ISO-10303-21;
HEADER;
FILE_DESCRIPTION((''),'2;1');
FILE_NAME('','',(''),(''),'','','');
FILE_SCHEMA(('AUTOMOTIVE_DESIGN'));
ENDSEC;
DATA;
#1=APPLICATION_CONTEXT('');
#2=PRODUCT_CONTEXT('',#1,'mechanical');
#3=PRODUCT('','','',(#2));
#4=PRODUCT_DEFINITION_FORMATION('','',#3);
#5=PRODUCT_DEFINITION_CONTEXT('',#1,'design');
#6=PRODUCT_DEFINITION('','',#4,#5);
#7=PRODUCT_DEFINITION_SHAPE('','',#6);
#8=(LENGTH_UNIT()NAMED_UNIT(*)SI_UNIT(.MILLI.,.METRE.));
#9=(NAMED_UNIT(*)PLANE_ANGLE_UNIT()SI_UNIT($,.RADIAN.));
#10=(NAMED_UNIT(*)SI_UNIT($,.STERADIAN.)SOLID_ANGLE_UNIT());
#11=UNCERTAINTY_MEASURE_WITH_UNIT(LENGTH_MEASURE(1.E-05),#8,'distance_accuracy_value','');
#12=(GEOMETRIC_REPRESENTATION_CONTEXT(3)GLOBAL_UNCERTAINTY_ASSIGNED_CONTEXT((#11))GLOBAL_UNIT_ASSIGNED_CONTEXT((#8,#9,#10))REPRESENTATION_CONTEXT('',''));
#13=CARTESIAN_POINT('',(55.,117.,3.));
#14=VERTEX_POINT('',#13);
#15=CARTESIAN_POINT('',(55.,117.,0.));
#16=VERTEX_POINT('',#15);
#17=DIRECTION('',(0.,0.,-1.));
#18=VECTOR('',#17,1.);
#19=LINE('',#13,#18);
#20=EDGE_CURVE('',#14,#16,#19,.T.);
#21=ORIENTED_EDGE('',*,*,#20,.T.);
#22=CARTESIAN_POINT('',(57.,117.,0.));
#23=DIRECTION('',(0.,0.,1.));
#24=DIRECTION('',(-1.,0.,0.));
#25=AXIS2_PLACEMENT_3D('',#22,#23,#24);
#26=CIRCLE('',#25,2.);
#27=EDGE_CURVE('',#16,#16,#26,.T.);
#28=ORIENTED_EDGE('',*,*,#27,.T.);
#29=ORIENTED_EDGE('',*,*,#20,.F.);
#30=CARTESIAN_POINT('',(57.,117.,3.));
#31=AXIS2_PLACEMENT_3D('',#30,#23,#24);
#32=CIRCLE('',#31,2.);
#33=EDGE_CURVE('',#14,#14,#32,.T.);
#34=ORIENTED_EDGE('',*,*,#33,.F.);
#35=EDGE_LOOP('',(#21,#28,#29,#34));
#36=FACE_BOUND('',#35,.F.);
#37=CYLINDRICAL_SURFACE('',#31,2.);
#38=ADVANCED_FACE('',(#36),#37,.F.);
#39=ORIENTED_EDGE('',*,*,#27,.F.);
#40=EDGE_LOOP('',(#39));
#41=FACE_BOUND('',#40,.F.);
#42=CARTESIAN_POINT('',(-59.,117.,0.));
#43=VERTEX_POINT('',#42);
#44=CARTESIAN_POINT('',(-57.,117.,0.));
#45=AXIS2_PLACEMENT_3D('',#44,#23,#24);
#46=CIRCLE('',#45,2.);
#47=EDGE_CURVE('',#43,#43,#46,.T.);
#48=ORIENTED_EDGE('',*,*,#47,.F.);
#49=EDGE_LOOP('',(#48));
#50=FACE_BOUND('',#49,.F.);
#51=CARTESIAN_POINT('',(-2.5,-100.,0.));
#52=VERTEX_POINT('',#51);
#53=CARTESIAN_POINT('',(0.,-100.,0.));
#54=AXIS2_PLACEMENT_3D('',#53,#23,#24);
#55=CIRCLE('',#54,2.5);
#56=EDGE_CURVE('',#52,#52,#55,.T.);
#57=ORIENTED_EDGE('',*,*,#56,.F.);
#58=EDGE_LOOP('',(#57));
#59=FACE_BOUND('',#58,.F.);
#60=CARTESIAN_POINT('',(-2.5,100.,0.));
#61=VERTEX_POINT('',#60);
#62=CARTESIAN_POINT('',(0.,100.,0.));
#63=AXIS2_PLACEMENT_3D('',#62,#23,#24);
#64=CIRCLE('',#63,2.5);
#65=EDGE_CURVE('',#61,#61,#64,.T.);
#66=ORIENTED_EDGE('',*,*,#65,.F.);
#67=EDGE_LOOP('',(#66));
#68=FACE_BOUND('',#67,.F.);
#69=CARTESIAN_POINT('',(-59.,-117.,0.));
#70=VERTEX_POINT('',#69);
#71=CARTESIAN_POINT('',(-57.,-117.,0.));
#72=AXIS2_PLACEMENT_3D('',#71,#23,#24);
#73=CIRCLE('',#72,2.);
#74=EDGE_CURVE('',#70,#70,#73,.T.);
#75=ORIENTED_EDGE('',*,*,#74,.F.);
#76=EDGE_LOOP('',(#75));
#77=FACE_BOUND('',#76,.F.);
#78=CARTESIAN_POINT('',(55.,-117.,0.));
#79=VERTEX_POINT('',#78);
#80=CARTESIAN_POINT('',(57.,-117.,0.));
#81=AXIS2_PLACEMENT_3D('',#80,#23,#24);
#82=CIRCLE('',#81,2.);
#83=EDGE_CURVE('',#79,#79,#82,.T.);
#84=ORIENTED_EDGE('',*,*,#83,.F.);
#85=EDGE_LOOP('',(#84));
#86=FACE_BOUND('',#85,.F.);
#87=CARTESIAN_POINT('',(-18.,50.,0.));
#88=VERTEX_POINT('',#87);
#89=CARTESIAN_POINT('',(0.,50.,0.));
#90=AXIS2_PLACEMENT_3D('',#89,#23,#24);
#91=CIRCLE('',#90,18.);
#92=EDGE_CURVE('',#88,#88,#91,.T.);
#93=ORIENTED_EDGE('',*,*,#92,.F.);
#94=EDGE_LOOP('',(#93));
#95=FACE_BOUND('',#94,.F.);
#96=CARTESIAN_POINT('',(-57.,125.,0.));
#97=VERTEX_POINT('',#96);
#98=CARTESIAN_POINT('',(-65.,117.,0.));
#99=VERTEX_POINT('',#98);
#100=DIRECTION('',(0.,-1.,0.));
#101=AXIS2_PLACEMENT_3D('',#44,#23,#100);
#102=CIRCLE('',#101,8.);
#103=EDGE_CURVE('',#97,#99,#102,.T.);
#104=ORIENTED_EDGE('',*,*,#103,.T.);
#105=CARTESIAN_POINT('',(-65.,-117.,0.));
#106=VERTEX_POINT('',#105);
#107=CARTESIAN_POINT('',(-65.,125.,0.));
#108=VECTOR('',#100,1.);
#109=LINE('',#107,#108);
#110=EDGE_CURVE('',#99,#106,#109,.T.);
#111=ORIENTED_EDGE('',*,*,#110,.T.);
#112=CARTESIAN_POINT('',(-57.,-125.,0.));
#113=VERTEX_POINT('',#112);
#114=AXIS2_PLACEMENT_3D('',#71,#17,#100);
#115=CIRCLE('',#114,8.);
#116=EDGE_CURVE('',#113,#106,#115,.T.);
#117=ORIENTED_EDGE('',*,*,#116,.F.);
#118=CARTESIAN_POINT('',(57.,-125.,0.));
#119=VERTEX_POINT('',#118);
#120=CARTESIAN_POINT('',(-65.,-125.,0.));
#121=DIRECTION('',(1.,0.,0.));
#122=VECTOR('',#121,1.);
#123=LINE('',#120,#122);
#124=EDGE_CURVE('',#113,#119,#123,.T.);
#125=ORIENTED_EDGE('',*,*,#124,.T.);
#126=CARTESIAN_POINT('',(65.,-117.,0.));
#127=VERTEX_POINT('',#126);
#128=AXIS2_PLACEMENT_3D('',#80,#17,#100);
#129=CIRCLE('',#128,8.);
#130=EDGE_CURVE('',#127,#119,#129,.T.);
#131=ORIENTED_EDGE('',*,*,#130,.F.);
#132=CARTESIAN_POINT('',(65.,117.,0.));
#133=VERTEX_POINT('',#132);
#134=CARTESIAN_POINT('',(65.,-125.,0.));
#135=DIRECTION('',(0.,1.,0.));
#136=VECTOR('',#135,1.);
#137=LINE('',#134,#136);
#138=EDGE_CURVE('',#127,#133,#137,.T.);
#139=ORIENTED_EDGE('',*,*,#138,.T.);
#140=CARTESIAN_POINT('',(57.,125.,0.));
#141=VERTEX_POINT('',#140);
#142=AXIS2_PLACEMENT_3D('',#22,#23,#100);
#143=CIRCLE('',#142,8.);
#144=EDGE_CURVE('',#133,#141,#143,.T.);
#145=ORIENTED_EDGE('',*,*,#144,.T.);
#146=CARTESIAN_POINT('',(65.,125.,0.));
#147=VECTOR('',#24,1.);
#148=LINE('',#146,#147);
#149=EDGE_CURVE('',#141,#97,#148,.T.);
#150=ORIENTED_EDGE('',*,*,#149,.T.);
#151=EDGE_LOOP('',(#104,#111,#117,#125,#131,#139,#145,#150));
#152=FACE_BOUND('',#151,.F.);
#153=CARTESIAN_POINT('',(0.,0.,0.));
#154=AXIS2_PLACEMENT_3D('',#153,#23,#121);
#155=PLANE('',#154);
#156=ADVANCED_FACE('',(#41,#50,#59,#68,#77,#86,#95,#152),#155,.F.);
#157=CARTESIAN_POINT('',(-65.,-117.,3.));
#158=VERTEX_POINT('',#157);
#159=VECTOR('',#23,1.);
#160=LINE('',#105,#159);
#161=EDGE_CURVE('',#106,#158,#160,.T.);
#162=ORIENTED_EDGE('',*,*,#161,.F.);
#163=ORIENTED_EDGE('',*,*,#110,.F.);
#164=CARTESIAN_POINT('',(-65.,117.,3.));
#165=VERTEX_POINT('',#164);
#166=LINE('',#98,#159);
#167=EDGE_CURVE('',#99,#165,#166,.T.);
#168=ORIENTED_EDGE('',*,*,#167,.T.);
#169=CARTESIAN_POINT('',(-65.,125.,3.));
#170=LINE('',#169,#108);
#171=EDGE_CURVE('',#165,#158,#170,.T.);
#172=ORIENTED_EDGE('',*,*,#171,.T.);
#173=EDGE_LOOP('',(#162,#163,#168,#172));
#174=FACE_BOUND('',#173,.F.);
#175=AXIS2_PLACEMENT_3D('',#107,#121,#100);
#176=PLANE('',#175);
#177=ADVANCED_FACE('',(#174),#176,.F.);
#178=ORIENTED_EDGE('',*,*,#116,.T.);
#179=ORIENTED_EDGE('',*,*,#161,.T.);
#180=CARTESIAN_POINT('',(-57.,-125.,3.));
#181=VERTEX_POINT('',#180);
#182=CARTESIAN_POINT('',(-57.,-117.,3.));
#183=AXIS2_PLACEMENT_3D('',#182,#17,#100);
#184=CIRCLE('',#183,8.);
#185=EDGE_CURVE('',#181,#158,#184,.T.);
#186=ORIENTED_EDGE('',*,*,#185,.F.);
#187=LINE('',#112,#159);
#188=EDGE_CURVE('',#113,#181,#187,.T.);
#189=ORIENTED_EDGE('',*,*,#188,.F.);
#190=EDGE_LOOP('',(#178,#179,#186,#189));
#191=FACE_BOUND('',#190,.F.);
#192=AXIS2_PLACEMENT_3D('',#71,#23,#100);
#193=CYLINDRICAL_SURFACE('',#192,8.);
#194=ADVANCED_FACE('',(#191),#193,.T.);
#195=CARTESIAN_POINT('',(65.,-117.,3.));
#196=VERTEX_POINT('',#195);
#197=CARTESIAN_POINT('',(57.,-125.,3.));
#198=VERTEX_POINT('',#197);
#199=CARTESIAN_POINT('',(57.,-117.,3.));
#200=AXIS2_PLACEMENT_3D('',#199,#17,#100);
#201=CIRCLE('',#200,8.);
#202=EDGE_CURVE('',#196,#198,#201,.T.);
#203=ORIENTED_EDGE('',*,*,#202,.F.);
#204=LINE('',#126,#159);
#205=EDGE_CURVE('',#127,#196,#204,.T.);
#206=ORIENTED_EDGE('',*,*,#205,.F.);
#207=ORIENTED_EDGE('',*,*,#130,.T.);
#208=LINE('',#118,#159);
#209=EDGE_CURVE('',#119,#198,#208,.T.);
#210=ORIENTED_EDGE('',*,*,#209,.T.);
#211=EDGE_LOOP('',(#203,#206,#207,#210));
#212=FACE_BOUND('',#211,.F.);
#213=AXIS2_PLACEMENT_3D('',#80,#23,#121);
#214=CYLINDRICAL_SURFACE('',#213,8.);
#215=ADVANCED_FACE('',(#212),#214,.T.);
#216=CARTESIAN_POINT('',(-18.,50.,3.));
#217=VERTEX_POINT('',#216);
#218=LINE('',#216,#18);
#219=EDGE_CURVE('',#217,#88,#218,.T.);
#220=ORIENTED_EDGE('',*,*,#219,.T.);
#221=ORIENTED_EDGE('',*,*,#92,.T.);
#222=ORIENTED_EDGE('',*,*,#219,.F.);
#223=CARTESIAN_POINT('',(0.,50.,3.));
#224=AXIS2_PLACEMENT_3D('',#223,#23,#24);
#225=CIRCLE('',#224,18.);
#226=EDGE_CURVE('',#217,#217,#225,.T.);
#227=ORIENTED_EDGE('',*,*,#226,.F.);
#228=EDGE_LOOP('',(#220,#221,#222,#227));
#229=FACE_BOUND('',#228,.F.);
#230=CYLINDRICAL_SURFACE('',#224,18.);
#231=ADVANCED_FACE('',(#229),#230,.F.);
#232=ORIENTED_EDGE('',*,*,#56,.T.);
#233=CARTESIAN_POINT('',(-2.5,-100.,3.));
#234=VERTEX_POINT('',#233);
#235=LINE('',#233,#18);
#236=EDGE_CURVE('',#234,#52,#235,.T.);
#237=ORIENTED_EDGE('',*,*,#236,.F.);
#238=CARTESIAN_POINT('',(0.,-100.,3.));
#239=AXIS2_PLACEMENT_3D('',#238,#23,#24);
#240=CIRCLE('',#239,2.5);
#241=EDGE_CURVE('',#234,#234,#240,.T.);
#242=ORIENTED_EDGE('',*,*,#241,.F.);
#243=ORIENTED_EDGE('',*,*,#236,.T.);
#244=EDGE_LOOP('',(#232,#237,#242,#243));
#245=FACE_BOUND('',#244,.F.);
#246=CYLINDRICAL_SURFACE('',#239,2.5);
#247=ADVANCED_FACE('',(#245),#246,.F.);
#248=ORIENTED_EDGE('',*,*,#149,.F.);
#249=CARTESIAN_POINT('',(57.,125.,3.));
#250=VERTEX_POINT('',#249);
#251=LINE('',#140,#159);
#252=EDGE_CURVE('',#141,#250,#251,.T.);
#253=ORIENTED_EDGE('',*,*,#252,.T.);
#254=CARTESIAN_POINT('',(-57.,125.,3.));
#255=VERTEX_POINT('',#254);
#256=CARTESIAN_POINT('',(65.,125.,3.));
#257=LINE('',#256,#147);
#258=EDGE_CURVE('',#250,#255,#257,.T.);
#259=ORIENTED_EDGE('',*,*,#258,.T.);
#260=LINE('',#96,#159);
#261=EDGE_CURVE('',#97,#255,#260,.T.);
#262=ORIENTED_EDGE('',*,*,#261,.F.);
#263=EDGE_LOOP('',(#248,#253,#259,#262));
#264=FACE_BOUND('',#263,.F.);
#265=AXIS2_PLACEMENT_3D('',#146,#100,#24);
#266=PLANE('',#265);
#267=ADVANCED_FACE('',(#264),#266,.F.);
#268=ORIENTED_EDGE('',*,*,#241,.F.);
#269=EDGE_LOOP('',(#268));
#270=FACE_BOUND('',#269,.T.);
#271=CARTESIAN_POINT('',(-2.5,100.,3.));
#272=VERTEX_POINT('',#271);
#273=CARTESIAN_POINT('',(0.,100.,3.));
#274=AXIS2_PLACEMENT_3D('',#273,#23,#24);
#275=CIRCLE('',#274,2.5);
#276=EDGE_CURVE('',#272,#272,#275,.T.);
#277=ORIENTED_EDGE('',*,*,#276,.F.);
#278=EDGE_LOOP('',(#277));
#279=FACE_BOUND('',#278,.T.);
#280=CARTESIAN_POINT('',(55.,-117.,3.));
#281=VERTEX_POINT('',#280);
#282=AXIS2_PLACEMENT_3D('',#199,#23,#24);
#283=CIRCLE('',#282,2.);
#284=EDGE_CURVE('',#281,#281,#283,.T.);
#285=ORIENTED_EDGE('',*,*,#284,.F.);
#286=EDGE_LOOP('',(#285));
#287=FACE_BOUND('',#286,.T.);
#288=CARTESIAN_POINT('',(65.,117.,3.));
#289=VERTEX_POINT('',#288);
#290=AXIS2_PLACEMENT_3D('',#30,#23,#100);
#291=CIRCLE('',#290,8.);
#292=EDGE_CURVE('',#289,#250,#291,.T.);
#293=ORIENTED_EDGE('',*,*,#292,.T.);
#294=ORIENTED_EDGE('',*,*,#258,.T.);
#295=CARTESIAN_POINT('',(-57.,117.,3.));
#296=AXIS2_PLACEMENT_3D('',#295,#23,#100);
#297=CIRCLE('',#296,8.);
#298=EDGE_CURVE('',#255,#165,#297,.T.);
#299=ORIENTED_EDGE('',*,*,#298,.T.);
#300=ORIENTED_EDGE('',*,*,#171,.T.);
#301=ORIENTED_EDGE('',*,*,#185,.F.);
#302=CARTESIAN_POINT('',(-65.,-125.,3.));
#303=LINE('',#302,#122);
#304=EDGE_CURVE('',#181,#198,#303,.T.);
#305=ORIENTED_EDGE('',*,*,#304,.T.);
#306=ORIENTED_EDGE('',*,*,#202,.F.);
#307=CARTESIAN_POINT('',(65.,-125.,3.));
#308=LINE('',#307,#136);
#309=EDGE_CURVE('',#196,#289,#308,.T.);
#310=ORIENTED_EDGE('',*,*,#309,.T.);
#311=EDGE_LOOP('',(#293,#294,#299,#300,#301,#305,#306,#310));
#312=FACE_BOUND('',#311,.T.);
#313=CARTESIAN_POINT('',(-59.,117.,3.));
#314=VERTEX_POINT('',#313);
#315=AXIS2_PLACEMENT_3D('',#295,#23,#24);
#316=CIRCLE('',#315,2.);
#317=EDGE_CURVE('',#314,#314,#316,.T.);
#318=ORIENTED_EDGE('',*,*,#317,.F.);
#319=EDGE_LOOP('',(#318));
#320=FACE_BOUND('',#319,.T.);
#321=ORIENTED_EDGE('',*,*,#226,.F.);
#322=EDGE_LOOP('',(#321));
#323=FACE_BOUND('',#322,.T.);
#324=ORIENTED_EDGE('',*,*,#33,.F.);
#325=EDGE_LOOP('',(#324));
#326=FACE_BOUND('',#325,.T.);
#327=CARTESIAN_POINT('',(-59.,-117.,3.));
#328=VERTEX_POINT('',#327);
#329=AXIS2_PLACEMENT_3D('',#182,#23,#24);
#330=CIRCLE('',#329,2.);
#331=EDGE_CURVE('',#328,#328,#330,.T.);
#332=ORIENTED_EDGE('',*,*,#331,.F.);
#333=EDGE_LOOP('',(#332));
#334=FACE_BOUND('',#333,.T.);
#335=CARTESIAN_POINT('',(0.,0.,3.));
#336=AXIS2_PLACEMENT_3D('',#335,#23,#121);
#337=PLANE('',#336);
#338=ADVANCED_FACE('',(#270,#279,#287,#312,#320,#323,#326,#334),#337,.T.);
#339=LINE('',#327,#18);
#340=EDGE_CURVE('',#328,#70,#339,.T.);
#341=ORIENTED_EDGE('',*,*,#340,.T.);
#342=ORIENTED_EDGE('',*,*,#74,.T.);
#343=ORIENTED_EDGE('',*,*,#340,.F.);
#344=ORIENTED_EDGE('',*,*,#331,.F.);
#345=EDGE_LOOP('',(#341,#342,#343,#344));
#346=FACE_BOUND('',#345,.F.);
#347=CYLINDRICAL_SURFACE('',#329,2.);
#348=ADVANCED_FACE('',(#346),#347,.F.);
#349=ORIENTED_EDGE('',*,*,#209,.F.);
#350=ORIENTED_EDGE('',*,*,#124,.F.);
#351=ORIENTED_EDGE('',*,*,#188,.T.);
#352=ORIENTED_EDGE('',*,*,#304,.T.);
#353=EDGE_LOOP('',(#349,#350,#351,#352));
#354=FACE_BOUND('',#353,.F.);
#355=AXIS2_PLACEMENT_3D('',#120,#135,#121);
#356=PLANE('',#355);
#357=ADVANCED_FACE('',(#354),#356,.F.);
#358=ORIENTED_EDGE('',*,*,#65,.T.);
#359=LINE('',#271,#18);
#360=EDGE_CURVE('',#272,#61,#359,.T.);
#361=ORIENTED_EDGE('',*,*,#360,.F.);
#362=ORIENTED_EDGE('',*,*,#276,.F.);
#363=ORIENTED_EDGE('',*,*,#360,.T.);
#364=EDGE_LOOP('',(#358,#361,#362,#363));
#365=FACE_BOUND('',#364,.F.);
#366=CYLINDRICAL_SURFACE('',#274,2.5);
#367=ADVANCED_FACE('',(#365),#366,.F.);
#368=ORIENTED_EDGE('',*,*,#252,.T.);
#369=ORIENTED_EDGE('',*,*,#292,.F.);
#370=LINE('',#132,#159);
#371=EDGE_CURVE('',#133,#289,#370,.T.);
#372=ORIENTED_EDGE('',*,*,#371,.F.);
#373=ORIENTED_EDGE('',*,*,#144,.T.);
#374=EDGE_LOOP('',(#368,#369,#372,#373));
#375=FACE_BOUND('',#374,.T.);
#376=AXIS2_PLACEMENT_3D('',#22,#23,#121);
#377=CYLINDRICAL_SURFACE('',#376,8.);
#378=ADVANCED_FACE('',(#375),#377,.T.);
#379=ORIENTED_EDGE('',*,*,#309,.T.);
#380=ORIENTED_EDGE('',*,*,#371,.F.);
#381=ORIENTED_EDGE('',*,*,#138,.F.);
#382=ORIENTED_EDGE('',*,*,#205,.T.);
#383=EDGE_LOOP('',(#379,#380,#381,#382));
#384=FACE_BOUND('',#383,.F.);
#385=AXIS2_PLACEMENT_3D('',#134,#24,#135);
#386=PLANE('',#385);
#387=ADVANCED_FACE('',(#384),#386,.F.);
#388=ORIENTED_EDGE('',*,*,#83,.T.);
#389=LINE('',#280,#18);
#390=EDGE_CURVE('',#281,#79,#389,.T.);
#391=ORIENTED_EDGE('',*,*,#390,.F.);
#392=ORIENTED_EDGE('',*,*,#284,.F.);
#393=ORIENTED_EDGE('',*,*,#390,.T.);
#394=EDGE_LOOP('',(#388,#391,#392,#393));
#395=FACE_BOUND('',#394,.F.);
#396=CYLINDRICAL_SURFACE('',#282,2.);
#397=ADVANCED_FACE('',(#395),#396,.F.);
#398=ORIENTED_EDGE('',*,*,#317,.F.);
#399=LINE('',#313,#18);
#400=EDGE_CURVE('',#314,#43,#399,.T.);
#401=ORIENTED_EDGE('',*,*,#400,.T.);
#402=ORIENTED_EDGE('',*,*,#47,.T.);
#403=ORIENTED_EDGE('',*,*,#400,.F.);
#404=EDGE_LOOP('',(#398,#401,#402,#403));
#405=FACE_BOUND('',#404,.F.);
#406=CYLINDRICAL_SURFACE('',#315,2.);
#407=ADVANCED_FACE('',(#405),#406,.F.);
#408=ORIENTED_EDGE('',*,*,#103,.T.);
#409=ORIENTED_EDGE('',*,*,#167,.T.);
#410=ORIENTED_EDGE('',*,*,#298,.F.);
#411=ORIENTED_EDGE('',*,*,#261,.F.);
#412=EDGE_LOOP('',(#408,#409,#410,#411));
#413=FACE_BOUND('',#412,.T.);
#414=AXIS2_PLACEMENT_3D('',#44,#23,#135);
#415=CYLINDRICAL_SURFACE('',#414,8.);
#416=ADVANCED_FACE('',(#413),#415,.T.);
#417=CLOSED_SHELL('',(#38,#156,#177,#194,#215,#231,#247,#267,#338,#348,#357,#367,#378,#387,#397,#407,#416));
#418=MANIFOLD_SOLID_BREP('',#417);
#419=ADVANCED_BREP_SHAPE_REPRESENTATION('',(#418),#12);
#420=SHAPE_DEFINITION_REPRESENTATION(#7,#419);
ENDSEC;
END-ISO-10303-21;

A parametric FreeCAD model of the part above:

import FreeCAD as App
import Part
import Sketcher


def edges_at(feature, points):
    """Names of the edges that pass closest to the given points."""
    edges = feature.Shape.Edges
    near = lambda p: min(range(len(edges)), key=lambda i: edges[i].distToShape(Part.Vertex(*p))[0])
    return sorted({f"Edge{near(p) + 1}" for p in points})


def add_polygon(sketch, points):
    """Adds a closed chain of lines whose ends are joined by coincident constraints."""
    first, n = sketch.GeometryCount, len(points)
    for a, b in zip(points, points[1:] + points[:1]):
        sketch.addGeometry(Part.LineSegment(App.Vector(*a, 0), App.Vector(*b, 0)), False)
    for i in range(n):
        sketch.addConstraint(Sketcher.Constraint("Coincident", first + i, 2, first + (i + 1) % n, 1))

doc = App.newDocument("Part")
body = doc.addObject("PartDesign::Body", "Body")

# Sketch on XY plane
sketch1 = doc.addObject("Sketcher::SketchObject", "Sketch")
body.addObject(sketch1)
sketch1.AttachmentSupport = (doc.XY_Plane, [""])
sketch1.MapMode = "FlatFace"
add_polygon(sketch1, [(65, -125), (65, 125), (-65, 125), (-65, -125)])  # lines 0-3
sketch1.addConstraint([
    Sketcher.Constraint("Vertical", 0),
    Sketcher.Constraint("Horizontal", 1),
    Sketcher.Constraint("Vertical", 2),
    Sketcher.Constraint("Horizontal", 3),
    Sketcher.Constraint("Symmetric", 0, 2, 2, 2, -1, 1),
    Sketcher.Constraint("DistanceX", 1, 2, 1, 1, 130.0),
    Sketcher.Constraint("DistanceY", 0, 1, 0, 2, 250.0),
])
pad1 = doc.addObject("PartDesign::Pad", "Pad")
body.addObject(pad1)
pad1.Profile = sketch1
pad1.Length = 3

# Sketch on XY plane
sketch2 = doc.addObject("Sketcher::SketchObject", "Sketch001")
body.addObject(sketch2)
sketch2.AttachmentSupport = (doc.XY_Plane, [""])
sketch2.MapMode = "FlatFace"
sketch2.AttachmentOffset = App.Placement(App.Vector(0, 0, 3), App.Rotation())
sketch2.addGeometry([
    Part.Circle(App.Vector(0, 50, 0), App.Vector(0, 0, 1), 18),
    Part.Circle(App.Vector(0, 100, 0), App.Vector(0, 0, 1), 2.5),
    Part.Circle(App.Vector(0, -100, 0), App.Vector(0, 0, 1), 2.5),
], False)
sketch2.addConstraint([
    Sketcher.Constraint("Equal", 1, 2),
    Sketcher.Constraint("Symmetric", 1, 3, 2, 3, -1, 1),
    Sketcher.Constraint("PointOnObject", 0, 3, -2),
    Sketcher.Constraint("PointOnObject", 1, 3, -2),
    Sketcher.Constraint("Diameter", 1, 5.0),
    Sketcher.Constraint("Diameter", 0, 36.0),
    Sketcher.Constraint("DistanceY", -1, 1, 0, 3, 50.0),
    Sketcher.Constraint("DistanceY", -1, 1, 1, 3, 100.0),
])
pocket1 = doc.addObject("PartDesign::Pocket", "Pocket")
body.addObject(pocket1)
pocket1.Profile = sketch2
pocket1.Length = 3
doc.recompute()

fillet = doc.addObject("PartDesign::Fillet", "Fillet")
body.addObject(fillet)
fillet.Base = (pocket1, edges_at(pocket1, [
    (65, -125, 1.5),
    (-65, -125, 1.5),
    (-65, 125, 1.5),
    (65, 125, 1.5),
]))
fillet.Radius = 8

# Sketch on XY plane
sketch3 = doc.addObject("Sketcher::SketchObject", "Sketch002")
body.addObject(sketch3)
sketch3.AttachmentSupport = (doc.XY_Plane, [""])
sketch3.MapMode = "FlatFace"
sketch3.AttachmentOffset = App.Placement(App.Vector(0, 0, 3), App.Rotation())
sketch3.addGeometry([
    Part.Circle(App.Vector(57, -117, 0), App.Vector(0, 0, 1), 2),
    Part.Circle(App.Vector(-57, -117, 0), App.Vector(0, 0, 1), 2),
    Part.Circle(App.Vector(-57, 117, 0), App.Vector(0, 0, 1), 2),
    Part.Circle(App.Vector(57, 117, 0), App.Vector(0, 0, 1), 2),
], False)
sketch3.addConstraint([
    Sketcher.Constraint("Equal", 0, 1),
    Sketcher.Constraint("Equal", 1, 2),
    Sketcher.Constraint("Equal", 2, 3),
    Sketcher.Constraint("Symmetric", 0, 3, 2, 3, -1, 1),
    Sketcher.Constraint("Symmetric", 1, 3, 3, 3, -1, 1),
    Sketcher.Constraint("Symmetric", 0, 3, 1, 3, -2),
    Sketcher.Constraint("Diameter", 0, 4.0),
    Sketcher.Constraint("DistanceX", -1, 1, 0, 3, 57.0),
    Sketcher.Constraint("DistanceY", 0, 3, -1, 1, 117.0),
])
pocket2 = doc.addObject("PartDesign::Pocket", "Pocket001")
body.addObject(pocket2)
pocket2.Profile = sketch3
pocket2.Length = 3

doc.recompute()
